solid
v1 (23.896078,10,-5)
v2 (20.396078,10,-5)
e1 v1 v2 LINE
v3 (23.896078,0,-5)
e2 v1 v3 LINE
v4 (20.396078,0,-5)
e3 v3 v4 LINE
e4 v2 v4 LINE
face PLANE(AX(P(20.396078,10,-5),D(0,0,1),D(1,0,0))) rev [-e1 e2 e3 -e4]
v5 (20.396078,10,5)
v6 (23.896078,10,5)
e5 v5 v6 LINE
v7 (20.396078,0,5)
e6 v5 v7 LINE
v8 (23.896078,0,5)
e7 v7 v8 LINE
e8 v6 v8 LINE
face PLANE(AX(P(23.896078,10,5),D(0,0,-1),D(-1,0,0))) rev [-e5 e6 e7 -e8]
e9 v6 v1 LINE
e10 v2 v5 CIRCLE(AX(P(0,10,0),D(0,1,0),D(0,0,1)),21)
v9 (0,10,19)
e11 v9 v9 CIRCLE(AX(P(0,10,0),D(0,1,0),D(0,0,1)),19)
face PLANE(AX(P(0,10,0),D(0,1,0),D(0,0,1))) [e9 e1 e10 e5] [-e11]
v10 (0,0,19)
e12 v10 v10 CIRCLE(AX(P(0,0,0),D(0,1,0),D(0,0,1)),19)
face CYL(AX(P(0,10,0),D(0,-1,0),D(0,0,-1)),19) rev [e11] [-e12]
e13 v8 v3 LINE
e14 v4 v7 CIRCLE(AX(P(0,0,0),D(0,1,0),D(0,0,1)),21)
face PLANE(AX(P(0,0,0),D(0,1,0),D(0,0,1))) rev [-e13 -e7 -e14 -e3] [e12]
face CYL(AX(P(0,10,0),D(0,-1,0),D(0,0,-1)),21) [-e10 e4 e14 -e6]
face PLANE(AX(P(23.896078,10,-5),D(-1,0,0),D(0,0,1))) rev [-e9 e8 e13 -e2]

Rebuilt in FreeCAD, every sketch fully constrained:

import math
import FreeCAD as App
import Part
import Sketcher
from FreeCAD import Vector

doc = App.newDocument("Part")
body = doc.addObject("PartDesign::Body", "Body")

# Sketch on XZ plane
sketch1 = body.newObject("Sketcher::SketchObject", "Sketch")
sketch1.AttachmentSupport = (doc.getObject("XZ_Plane"), [""])
sketch1.MapMode = "FlatFace"
sketch1.addGeometry([
    Part.LineSegment(Vector(23.896078, -5, 0), Vector(20.396078, -5, 0)),  # 0
    Part.ArcOfCircle(Part.Circle(Vector(0, 0, 0), Vector(0, 0, 1), 21), math.radians(13.774147), math.radians(346.225853)),  # 1
    Part.LineSegment(Vector(20.396078, 5, 0), Vector(23.896078, 5, 0)),  # 2
    Part.LineSegment(Vector(23.896078, 5, 0), Vector(23.896078, -5, 0)),  # 3
    Part.Circle(Vector(0, 0, 0), Vector(0, 0, 1), 19),  # 4
], False)
sketch1.addConstraint([
    Sketcher.Constraint("Coincident", 0, 2, 1, 2),
    Sketcher.Constraint("Coincident", 1, 1, 2, 1),
    Sketcher.Constraint("Coincident", 2, 2, 3, 1),
    Sketcher.Constraint("Coincident", 3, 2, 0, 1),
    Sketcher.Constraint("Horizontal", 0),
    Sketcher.Constraint("Horizontal", 2),
    Sketcher.Constraint("Vertical", 3),
    Sketcher.Constraint("Coincident", 1, 3, -1, 1),
    Sketcher.Constraint("Coincident", 4, 3, -1, 1),
    Sketcher.Constraint("Vertical", 0, 2, 1, 1),
    Sketcher.Constraint("Diameter", 4, 38.0),
    Sketcher.Constraint("Radius", 1, 21.0),
    Sketcher.Constraint("DistanceY", 3, 2, 3, 1, 10.0),
    Sketcher.Constraint("DistanceX", 0, 2, 0, 1, 3.5),
])
pad1 = body.newObject("PartDesign::Pad", "Pad")
pad1.Profile = sketch1
pad1.Length = 10
pad1.Reversed = True

doc.recompute()
